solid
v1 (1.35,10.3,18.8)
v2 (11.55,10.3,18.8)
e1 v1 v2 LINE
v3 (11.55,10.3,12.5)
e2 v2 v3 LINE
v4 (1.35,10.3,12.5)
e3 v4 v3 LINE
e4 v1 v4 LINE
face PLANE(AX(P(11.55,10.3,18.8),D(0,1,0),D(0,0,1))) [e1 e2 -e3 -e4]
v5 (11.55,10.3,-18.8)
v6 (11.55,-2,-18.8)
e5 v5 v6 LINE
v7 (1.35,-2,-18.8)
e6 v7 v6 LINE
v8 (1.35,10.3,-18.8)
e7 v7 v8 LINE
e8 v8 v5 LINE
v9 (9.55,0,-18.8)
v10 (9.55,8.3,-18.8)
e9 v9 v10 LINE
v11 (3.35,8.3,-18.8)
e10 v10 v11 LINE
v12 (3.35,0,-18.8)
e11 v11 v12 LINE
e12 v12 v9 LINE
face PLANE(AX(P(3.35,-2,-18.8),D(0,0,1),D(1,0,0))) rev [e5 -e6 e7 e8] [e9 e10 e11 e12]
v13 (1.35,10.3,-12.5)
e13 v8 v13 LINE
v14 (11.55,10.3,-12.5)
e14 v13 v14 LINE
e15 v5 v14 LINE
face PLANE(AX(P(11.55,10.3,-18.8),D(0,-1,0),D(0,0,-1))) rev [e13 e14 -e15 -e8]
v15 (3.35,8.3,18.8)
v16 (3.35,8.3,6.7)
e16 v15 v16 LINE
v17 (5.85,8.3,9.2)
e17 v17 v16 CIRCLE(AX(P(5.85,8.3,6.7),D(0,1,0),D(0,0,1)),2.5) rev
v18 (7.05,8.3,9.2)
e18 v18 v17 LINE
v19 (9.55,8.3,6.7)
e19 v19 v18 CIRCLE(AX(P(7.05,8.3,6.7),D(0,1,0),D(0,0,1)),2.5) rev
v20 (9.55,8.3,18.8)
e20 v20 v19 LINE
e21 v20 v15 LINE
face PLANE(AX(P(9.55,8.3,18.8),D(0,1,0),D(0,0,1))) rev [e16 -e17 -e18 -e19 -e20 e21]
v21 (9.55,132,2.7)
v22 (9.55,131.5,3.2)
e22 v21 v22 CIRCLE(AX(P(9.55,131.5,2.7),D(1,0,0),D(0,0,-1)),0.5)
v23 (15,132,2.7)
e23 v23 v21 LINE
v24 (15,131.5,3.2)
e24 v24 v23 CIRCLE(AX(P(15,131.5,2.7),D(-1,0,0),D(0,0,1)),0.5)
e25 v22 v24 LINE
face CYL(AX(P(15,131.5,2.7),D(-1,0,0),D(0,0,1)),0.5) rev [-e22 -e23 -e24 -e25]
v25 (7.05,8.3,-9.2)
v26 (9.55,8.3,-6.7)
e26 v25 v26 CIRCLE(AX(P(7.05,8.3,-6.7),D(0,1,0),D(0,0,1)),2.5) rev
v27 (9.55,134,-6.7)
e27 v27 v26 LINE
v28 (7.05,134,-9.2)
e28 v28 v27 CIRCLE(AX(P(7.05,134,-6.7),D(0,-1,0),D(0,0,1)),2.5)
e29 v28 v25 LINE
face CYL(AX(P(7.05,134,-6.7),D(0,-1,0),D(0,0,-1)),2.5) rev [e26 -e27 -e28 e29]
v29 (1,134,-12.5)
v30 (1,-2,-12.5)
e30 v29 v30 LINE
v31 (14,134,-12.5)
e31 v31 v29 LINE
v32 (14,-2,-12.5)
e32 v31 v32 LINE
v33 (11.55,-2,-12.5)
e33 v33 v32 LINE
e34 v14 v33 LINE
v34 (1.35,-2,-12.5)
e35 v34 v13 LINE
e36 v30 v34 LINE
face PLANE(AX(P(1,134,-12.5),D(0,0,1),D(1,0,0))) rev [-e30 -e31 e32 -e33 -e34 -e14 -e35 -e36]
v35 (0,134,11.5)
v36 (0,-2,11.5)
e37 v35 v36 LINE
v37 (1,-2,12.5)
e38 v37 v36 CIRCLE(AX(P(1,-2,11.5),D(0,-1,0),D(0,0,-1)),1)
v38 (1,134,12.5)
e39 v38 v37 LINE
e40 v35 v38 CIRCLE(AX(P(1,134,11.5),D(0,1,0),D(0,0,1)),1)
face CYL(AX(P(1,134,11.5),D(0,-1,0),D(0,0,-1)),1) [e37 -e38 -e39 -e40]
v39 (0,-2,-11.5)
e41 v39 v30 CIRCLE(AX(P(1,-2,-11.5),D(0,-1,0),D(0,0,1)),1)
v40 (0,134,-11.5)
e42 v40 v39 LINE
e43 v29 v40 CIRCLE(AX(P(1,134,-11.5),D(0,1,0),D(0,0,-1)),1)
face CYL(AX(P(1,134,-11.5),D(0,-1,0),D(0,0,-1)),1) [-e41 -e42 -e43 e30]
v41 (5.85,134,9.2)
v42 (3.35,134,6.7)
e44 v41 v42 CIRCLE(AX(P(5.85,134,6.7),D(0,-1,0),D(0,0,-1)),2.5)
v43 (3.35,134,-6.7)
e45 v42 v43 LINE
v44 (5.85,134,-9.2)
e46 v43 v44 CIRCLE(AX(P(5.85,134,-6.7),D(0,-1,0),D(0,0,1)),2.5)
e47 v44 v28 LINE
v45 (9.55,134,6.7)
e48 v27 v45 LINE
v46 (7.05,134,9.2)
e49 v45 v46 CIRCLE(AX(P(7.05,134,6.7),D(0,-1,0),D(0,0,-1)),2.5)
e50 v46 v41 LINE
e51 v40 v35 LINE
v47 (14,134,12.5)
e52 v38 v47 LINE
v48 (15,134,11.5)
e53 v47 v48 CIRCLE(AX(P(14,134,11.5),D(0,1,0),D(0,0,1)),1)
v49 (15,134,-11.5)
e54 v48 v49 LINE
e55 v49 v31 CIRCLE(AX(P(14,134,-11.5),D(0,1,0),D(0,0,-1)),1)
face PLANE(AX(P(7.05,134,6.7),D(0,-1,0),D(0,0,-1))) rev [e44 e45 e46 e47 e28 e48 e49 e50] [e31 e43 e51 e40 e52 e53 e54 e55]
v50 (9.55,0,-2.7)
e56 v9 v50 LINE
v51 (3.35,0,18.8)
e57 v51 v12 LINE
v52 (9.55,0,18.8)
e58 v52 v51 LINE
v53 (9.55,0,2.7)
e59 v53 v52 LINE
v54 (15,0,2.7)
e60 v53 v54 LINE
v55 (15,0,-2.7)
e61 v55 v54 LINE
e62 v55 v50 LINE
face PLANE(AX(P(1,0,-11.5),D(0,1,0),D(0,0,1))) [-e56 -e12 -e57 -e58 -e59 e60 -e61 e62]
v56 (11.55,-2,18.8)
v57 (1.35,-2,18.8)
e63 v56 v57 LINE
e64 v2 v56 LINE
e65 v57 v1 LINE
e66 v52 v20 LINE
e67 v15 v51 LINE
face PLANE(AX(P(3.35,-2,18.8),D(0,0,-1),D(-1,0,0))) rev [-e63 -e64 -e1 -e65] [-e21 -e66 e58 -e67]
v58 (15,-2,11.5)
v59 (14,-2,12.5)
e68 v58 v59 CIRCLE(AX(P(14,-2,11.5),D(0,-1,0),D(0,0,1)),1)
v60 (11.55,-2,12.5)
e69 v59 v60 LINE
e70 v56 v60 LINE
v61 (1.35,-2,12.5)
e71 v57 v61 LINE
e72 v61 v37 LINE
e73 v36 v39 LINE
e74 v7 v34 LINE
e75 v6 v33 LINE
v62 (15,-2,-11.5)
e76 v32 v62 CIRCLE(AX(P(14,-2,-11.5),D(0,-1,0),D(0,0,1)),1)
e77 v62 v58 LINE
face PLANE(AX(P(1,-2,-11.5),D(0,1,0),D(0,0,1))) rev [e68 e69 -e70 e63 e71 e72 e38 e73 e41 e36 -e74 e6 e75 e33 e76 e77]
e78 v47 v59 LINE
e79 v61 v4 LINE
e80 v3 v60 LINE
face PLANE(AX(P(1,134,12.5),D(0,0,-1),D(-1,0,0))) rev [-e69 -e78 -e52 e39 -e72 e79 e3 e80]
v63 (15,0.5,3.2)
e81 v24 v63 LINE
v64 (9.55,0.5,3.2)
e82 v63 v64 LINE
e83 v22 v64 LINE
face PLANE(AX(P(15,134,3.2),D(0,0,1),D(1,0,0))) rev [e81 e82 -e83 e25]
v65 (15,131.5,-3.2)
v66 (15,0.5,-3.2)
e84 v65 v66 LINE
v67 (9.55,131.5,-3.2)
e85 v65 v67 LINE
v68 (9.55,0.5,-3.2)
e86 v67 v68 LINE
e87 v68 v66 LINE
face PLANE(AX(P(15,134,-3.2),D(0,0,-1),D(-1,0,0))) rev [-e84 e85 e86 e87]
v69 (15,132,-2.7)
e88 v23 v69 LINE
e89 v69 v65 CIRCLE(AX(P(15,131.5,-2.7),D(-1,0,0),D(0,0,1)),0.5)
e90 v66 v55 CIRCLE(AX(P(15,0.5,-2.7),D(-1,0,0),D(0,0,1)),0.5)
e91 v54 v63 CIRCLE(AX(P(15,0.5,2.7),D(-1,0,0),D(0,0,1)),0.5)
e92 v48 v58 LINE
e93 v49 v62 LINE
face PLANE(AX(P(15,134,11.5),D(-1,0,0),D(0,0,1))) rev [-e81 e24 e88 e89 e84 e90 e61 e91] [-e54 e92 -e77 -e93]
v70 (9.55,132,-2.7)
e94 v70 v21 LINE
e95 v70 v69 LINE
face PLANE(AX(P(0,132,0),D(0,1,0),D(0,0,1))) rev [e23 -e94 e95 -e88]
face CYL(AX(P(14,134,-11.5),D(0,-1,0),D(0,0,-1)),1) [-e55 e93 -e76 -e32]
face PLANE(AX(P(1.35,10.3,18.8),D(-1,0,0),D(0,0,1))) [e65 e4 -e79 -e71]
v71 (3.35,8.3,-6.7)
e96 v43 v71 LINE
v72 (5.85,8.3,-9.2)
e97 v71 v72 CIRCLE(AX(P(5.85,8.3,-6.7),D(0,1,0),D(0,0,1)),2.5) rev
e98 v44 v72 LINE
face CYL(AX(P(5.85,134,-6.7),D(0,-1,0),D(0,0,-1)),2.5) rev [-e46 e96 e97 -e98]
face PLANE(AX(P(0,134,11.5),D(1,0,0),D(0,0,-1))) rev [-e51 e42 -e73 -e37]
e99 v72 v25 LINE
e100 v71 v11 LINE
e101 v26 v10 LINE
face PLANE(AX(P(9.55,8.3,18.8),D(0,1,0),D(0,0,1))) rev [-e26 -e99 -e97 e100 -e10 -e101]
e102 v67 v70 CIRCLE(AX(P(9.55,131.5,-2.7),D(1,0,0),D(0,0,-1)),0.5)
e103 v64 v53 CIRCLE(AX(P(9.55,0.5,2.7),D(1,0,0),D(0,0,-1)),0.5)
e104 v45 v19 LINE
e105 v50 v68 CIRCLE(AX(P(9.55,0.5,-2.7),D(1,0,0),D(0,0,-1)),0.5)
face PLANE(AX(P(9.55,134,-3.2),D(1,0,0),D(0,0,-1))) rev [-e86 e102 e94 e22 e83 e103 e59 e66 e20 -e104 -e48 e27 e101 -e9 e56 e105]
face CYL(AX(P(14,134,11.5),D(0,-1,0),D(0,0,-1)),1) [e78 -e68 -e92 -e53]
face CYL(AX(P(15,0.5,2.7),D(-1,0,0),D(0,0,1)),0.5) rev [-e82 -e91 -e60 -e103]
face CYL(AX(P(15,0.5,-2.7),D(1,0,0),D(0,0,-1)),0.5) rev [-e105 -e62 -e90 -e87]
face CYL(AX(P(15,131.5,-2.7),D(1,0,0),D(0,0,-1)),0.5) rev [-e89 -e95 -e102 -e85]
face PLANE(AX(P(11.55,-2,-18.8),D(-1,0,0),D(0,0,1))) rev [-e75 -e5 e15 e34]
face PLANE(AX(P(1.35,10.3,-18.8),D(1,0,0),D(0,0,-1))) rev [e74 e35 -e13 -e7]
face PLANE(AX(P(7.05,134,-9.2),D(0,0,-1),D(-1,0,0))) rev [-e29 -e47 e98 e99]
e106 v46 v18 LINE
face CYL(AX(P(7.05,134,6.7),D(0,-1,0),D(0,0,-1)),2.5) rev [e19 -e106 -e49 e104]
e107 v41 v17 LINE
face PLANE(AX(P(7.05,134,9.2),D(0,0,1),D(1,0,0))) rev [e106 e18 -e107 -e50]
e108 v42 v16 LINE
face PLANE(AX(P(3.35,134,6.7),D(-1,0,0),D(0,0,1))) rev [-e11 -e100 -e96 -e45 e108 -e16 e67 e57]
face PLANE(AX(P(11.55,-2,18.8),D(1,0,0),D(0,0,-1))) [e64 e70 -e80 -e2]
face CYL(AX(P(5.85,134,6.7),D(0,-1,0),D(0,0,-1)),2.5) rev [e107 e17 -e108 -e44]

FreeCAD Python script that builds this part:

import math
import FreeCAD as App
import Part
import Sketcher
from FreeCAD import Vector
Q = App.Units.Quantity


def edges_at(feature, points):
    """Names of the edges that pass closest to the given points."""
    edges = feature.Shape.Edges
    near = lambda p: min(range(len(edges)), key=lambda i: edges[i].distToShape(Part.Vertex(*p))[0])
    return sorted({f"Edge{near(p) + 1}" for p in points})

doc = App.newDocument("Part")
body = doc.addObject("PartDesign::Body", "Body")

sketch1 = doc.addObject("Sketcher::SketchObject", "Sketch")
body.addObject(sketch1)
sketch1.AttachmentSupport = (doc.XZ_Plane, [""])
sketch1.MapMode = "FlatFace"
sketch1.addGeometry([
    Part.LineSegment(Vector(0, -11.5, 0), Vector(0, 11.5, 0)),
    Part.ArcOfCircle(Part.Circle(Vector(1, 11.5, 0), Vector(0, 0, 1), 1), math.radians(90), math.radians(180)),
    Part.LineSegment(Vector(1, 12.5, 0), Vector(14, 12.5, 0)),
    Part.ArcOfCircle(Part.Circle(Vector(14, 11.5, 0), Vector(0, 0, 1), 1), math.radians(0), math.radians(90)),
    Part.LineSegment(Vector(15, 11.5, 0), Vector(15, 3.2, 0)),
    Part.LineSegment(Vector(15, 3.2, 0), Vector(9.6, 3.2, 0)),
    Part.LineSegment(Vector(9.6, 3.2, 0), Vector(9.6, 6.7, 0)),
    Part.ArcOfCircle(Part.Circle(Vector(7, 6.7, 0), Vector(0, 0, 1), 2.5), math.radians(0), math.radians(90)),
    Part.LineSegment(Vector(7, 9.2, 0), Vector(5.8, 9.2, 0)),
    Part.ArcOfCircle(Part.Circle(Vector(5.8, 6.7, 0), Vector(0, 0, 1), 2.5), math.radians(90), math.radians(180)),
    Part.LineSegment(Vector(3.4, 6.7, 0), Vector(3.4, -6.7, 0)),
    Part.ArcOfCircle(Part.Circle(Vector(5.8, -6.7, 0), Vector(0, 0, 1), 2.5), math.radians(180), math.radians(270)),
    Part.LineSegment(Vector(5.8, -9.2, 0), Vector(7, -9.2, 0)),
    Part.ArcOfCircle(Part.Circle(Vector(7, -6.7, 0), Vector(0, 0, 1), 2.5), math.radians(-90), math.radians(0)),
    Part.LineSegment(Vector(9.6, -6.7, 0), Vector(9.6, -3.2, 0)),
    Part.LineSegment(Vector(9.6, -3.2, 0), Vector(15, -3.2, 0)),
    Part.LineSegment(Vector(15, -3.2, 0), Vector(15, -11.5, 0)),
    Part.ArcOfCircle(Part.Circle(Vector(14, -11.5, 0), Vector(0, 0, 1), 1), math.radians(-90), math.radians(0)),
    Part.LineSegment(Vector(14, -12.5, 0), Vector(1, -12.5, 0)),
    Part.ArcOfCircle(Part.Circle(Vector(1, -11.5, 0), Vector(0, 0, 1), 1), math.radians(-180), math.radians(-90)),
], False)
sketch1.addConstraint([
    Sketcher.Constraint("Tangent", 0, 2, 1, 2),
    Sketcher.Constraint("Tangent", 1, 1, 2, 1),
    Sketcher.Constraint("Tangent", 2, 2, 3, 2),
    Sketcher.Constraint("Tangent", 3, 1, 4, 1),
    Sketcher.Constraint("Coincident", 4, 2, 5, 1),
    Sketcher.Constraint("Coincident", 5, 2, 6, 1),
    Sketcher.Constraint("Tangent", 6, 2, 7, 1),
    Sketcher.Constraint("Tangent", 7, 2, 8, 1),
    Sketcher.Constraint("Tangent", 8, 2, 9, 1),
    Sketcher.Constraint("Tangent", 9, 2, 10, 1),
    Sketcher.Constraint("Tangent", 10, 2, 11, 1),
    Sketcher.Constraint("Tangent", 11, 2, 12, 1),
    Sketcher.Constraint("Tangent", 12, 2, 13, 1),
    Sketcher.Constraint("Tangent", 13, 2, 14, 1),
    Sketcher.Constraint("Coincident", 14, 2, 15, 1),
    Sketcher.Constraint("Coincident", 15, 2, 16, 1),
    Sketcher.Constraint("Tangent", 16, 2, 17, 2),
    Sketcher.Constraint("Tangent", 17, 1, 18, 1),
    Sketcher.Constraint("Tangent", 18, 2, 19, 2),
    Sketcher.Constraint("Tangent", 19, 1, 0, 1),
    Sketcher.Constraint("Vertical", 0),
    Sketcher.Constraint("Horizontal", 2),
    Sketcher.Constraint("Vertical", 4),
    Sketcher.Constraint("Horizontal", 5),
    Sketcher.Constraint("Vertical", 6),
    Sketcher.Constraint("Horizontal", 8),
    Sketcher.Constraint("Vertical", 10),
    Sketcher.Constraint("Horizontal", 12),
    Sketcher.Constraint("Vertical", 14),
    Sketcher.Constraint("Horizontal", 15),
    Sketcher.Constraint("Vertical", 16),
    Sketcher.Constraint("Horizontal", 18),
    Sketcher.Constraint("Equal", 1, 3),
    Sketcher.Constraint("Equal", 7, 9),
    Sketcher.Constraint("Equal", 9, 11),
    Sketcher.Constraint("Equal", 11, 13),
    Sketcher.Constraint("Equal", 3, 17),
    Sketcher.Constraint("Equal", 17, 19),
    Sketcher.Constraint("Symmetric", 0, 2, 19, 1, -1, 1),
    Sketcher.Constraint("Symmetric", 7, 3, 13, 3, -1),
    Sketcher.Constraint("Symmetric", 4, 2, 15, 2, -1),
    Sketcher.Constraint("Radius", 1, Q("1 mm")),
    Sketcher.Constraint("Radius", 7, Q("2.5 mm")),
    Sketcher.Constraint("DistanceX", 2, 1, 2, 2, Q("13 mm")),
    Sketcher.Constraint("DistanceY", 0, 1, 0, 2, Q("23 mm")),
    Sketcher.Constraint("DistanceX", 8, 2, 8, 1, Q("1.2 mm")),
    Sketcher.Constraint("DistanceY", 4, 2, 4, 1, Q("8.3 mm")),
    Sketcher.Constraint("DistanceY", 6, 1, 6, 2, Q("3.5 mm")),
    Sketcher.Constraint("DistanceX", 5, 2, 5, 1, Q("5.45 mm")),
])
pad1 = doc.addObject("PartDesign::Pad", "Pad")
body.addObject(pad1)
pad1.Profile = sketch1
pad1.Length = 134
pad1.Reversed = True

sketch2 = doc.addObject("Sketcher::SketchObject", "Sketch001")
body.addObject(sketch2)
sketch2.AttachmentSupport = (doc.XZ_Plane, [""])
sketch2.MapMode = "FlatFace"
sketch2.addGeometry([
    Part.LineSegment(Vector(3.4, 12.5, 0), Vector(1, 12.5, 0)),
    Part.ArcOfCircle(Part.Circle(Vector(1, 11.5, 0), Vector(0, 0, 1), 1), math.radians(90), math.radians(180)),
    Part.LineSegment(Vector(0, 11.5, 0), Vector(0, -11.5, 0)),
    Part.ArcOfCircle(Part.Circle(Vector(1, -11.5, 0), Vector(0, 0, 1), 1), math.radians(-180), math.radians(-90)),
    Part.LineSegment(Vector(1, -12.5, 0), Vector(3.4, -12.5, 0)),
    Part.LineSegment(Vector(3.4, -12.5, 0), Vector(3.4, -18.8, 0)),
    Part.LineSegment(Vector(3.4, -18.8, 0), Vector(9.6, -18.8, 0)),
    Part.LineSegment(Vector(9.6, -18.8, 0), Vector(9.6, -12.5, 0)),
    Part.LineSegment(Vector(9.6, -12.5, 0), Vector(14, -12.5, 0)),
    Part.ArcOfCircle(Part.Circle(Vector(14, -11.5, 0), Vector(0, 0, 1), 1), math.radians(-90), math.radians(0)),
    Part.LineSegment(Vector(15, -11.5, 0), Vector(15, 11.5, 0)),
    Part.ArcOfCircle(Part.Circle(Vector(14, 11.5, 0), Vector(0, 0, 1), 1), math.radians(0), math.radians(90)),
    Part.LineSegment(Vector(14, 12.5, 0), Vector(9.6, 12.5, 0)),
    Part.LineSegment(Vector(9.6, 12.5, 0), Vector(9.6, 18.8, 0)),
    Part.LineSegment(Vector(9.6, 18.8, 0), Vector(3.4, 18.8, 0)),
    Part.LineSegment(Vector(3.4, 18.8, 0), Vector(3.4, 12.5, 0)),
], False)
sketch2.addConstraint([
    Sketcher.Constraint("Tangent", 0, 2, 1, 1),
    Sketcher.Constraint("Tangent", 1, 2, 2, 1),
    Sketcher.Constraint("Tangent", 2, 2, 3, 1),
    Sketcher.Constraint("Tangent", 3, 2, 4, 1),
    Sketcher.Constraint("Coincident", 4, 2, 5, 1),
    Sketcher.Constraint("Coincident", 5, 2, 6, 1),
    Sketcher.Constraint("Coincident", 6, 2, 7, 1),
    Sketcher.Constraint("Coincident", 7, 2, 8, 1),
    Sketcher.Constraint("Tangent", 8, 2, 9, 1),
    Sketcher.Constraint("Tangent", 9, 2, 10, 1),
    Sketcher.Constraint("Tangent", 10, 2, 11, 1),
    Sketcher.Constraint("Tangent", 11, 2, 12, 1),
    Sketcher.Constraint("Coincident", 12, 2, 13, 1),
    Sketcher.Constraint("Coincident", 13, 2, 14, 1),
    Sketcher.Constraint("Coincident", 14, 2, 15, 1),
    Sketcher.Constraint("Coincident", 15, 2, 0, 1),
    Sketcher.Constraint("Horizontal", 0),
    Sketcher.Constraint("Vertical", 2),
    Sketcher.Constraint("Horizontal", 4),
    Sketcher.Constraint("Vertical", 5),
    Sketcher.Constraint("Horizontal", 6),
    Sketcher.Constraint("Vertical", 7),
    Sketcher.Constraint("Horizontal", 8),
    Sketcher.Constraint("Vertical", 10),
    Sketcher.Constraint("Horizontal", 12),
    Sketcher.Constraint("Vertical", 13),
    Sketcher.Constraint("Horizontal", 14),
    Sketcher.Constraint("Vertical", 15),
    Sketcher.Constraint("Equal", 1, 3),
    Sketcher.Constraint("Equal", 3, 9),
    Sketcher.Constraint("Equal", 9, 11),
    Sketcher.Constraint("Symmetric", 1, 2, 2, 2, -1, 1),
    Sketcher.Constraint("Symmetric", 7, 2, 12, 2, -1),
    Sketcher.Constraint("Symmetric", 5, 2, 14, 2, -1),
    Sketcher.Constraint("Horizontal", 3, 3, 9, 3),
    Sketcher.Constraint("Radius", 1, Q("1 mm")),
    Sketcher.Constraint("DistanceY", 2, 2, 2, 1, Q("23 mm")),
    Sketcher.Constraint("DistanceX", 6, 1, 6, 2, Q("6.2 mm")),
    Sketcher.Constraint("DistanceY", 5, 2, 5, 1, Q("6.3 mm")),
    Sketcher.Constraint("DistanceX", -1, 1, 9, 3, Q("14 mm")),
    Sketcher.Constraint("DistanceX", 0, 2, 0, 1, Q("2.35 mm")),
])
pad2 = doc.addObject("PartDesign::Pad", "Pad001")
body.addObject(pad2)
pad2.Profile = sketch2
pad2.Length = 2

sketch3 = doc.addObject("Sketcher::SketchObject", "Sketch002")
body.addObject(sketch3)
sketch3.AttachmentSupport = (doc.XZ_Plane, [""])
sketch3.MapMode = "FlatFace"
sketch3.AttachmentOffset = App.Placement(Vector(0, 0, -134), App.Rotation())
sketch3.addGeometry([
    Part.LineSegment(Vector(10, -3, 0), Vector(10, 3, 0)),
    Part.LineSegment(Vector(10, 3, 0), Vector(15, 3, 0)),
    Part.LineSegment(Vector(15, 3, 0), Vector(15, -3, 0)),
    Part.LineSegment(Vector(15, -3, 0), Vector(10, -3, 0)),
], False)
sketch3.addConstraint([
    Sketcher.Constraint("Coincident", 0, 2, 1, 1),
    Sketcher.Constraint("Coincident", 1, 2, 2, 1),
    Sketcher.Constraint("Coincident", 2, 2, 3, 1),
    Sketcher.Constraint("Coincident", 3, 2, 0, 1),
    Sketcher.Constraint("Vertical", 0),
    Sketcher.Constraint("Horizontal", 1),
    Sketcher.Constraint("Vertical", 2),
    Sketcher.Constraint("Horizontal", 3),
    Sketcher.Constraint("DistanceY", 0, 1, 0, 2, Q("6.4 mm")),
    Sketcher.Constraint("DistanceX", -1, 1, 1, 2, Q("15 mm")),
    Sketcher.Constraint("DistanceX", 1, 1, 1, 2, Q("5.45 mm")),
    Sketcher.Constraint("DistanceY", -1, 1, 0, 2, Q("3.2 mm")),
])
pad3 = doc.addObject("PartDesign::Pad", "Pad002")
body.addObject(pad3)
pad3.Profile = sketch3
pad3.Length = 2
doc.recompute()

fillet = doc.addObject("PartDesign::Fillet", "Fillet")
body.addObject(fillet)
fillet.Base = (pad3, edges_at(pad3, [(12.275, 132, 3.2)]))
fillet.Radius = 0.5
doc.recompute()

fillet2 = doc.addObject("PartDesign::Fillet", "Fillet001")
body.addObject(fillet2)
fillet2.Base = (fillet, edges_at(fillet, [(12.275, 132, -3.2), (12.275, 0, -3.2), (12.275, 0, 3.2)]))
fillet2.Radius = 0.5

sketch4 = doc.addObject("Sketcher::SketchObject", "Sketch003")
body.addObject(sketch4)
sketch4.AttachmentSupport = (doc.XY_Plane, [""])
sketch4.MapMode = "FlatFace"
sketch4.AttachmentOffset = App.Placement(Vector(0, 0, -12.5), App.Rotation())
sketch4.addGeometry([
    Part.LineSegment(Vector(10, 8, 0), Vector(10, 0, 0)),
    Part.LineSegment(Vector(10, 0, 0), Vector(3, 0, 0)),
    Part.LineSegment(Vector(3, 0, 0), Vector(3, 8, 0)),
    Part.LineSegment(Vector(3, 8, 0), Vector(10, 8, 0)),
], False)
sketch4.addConstraint([
    Sketcher.Constraint("Coincident", 0, 2, 1, 1),
    Sketcher.Constraint("Coincident", 1, 2, 2, 1),
    Sketcher.Constraint("Coincident", 2, 2, 3, 1),
    Sketcher.Constraint("Coincident", 3, 2, 0, 1),
    Sketcher.Constraint("Vertical", 0),
    Sketcher.Constraint("Horizontal", 1),
    Sketcher.Constraint("Vertical", 2),
    Sketcher.Constraint("Horizontal", 3),
    Sketcher.Constraint("PointOnObject", 0, 2, -1),
    Sketcher.Constraint("DistanceX", 1, 2, 1, 1, Q("6.2 mm")),
    Sketcher.Constraint("DistanceY", 0, 2, 0, 1, Q("8.3 mm")),
    Sketcher.Constraint("DistanceX", -1, 1, 0, 2, Q("9.55 mm")),
])
pocket1 = doc.addObject("PartDesign::Pocket", "Pocket")
body.addObject(pocket1)
pocket1.Profile = sketch4
pocket1.Type = "ThroughAll"
pocket1.Reversed = True

sketch5 = doc.addObject("Sketcher::SketchObject", "Sketch004")
body.addObject(sketch5)
sketch5.AttachmentSupport = (doc.XY_Plane, [""])
sketch5.MapMode = "FlatFace"
sketch5.AttachmentOffset = App.Placement(Vector(0, 0, -12.5), App.Rotation())
sketch5.addGeometry([
    Part.LineSegment(Vector(9.6, -2, 0), Vector(9.6, 8.3, 0)),
    Part.LineSegment(Vector(9.6, 8.3, 0), Vector(3.4, 8.3, 0)),
    Part.LineSegment(Vector(3.4, 8.3, 0), Vector(3.4, -2, 0)),
    Part.LineSegment(Vector(3.4, -2, 0), Vector(1.4, -2, 0)),
    Part.LineSegment(Vector(1.4, -2, 0), Vector(1.4, 10.3, 0)),
    Part.LineSegment(Vector(1.4, 10.3, 0), Vector(11.6, 10.3, 0)),
    Part.LineSegment(Vector(11.6, 10.3, 0), Vector(11.6, -2, 0)),
    Part.LineSegment(Vector(11.6, -2, 0), Vector(9.6, -2, 0)),
], False)
sketch5.addConstraint([
    Sketcher.Constraint("Coincident", 0, 2, 1, 1),
    Sketcher.Constraint("Coincident", 1, 2, 2, 1),
    Sketcher.Constraint("Coincident", 2, 2, 3, 1),
    Sketcher.Constraint("Coincident", 3, 2, 4, 1),
    Sketcher.Constraint("Coincident", 4, 2, 5, 1),
    Sketcher.Constraint("Coincident", 5, 2, 6, 1),
    Sketcher.Constraint("Coincident", 6, 2, 7, 1),
    Sketcher.Constraint("Coincident", 7, 2, 0, 1),
    Sketcher.Constraint("Vertical", 0),
    Sketcher.Constraint("Horizontal", 1),
    Sketcher.Constraint("Vertical", 2),
    Sketcher.Constraint("Horizontal", 3),
    Sketcher.Constraint("Vertical", 4),
    Sketcher.Constraint("Horizontal", 5),
    Sketcher.Constraint("Vertical", 6),
    Sketcher.Constraint("Horizontal", 7),
    Sketcher.Constraint("Horizontal", 3, 2, 6, 2),
    Sketcher.Constraint("Equal", 3, 7),
    Sketcher.Constraint("DistanceX", 3, 2, 3, 1, Q("2 mm")),
    Sketcher.Constraint("DistanceX", 1, 2, 1, 1, Q("6.2 mm")),
    Sketcher.Constraint("DistanceY", 0, 1, 0, 2, Q("10.3 mm")),
    Sketcher.Constraint("DistanceY", 4, 1, 4, 2, Q("12.3 mm")),
    Sketcher.Constraint("DistanceY", 2, 2, -1, 1, Q("2 mm")),
    Sketcher.Constraint("DistanceX", -1, 1, 0, 2, Q("9.55 mm")),
])
pad4 = doc.addObject("PartDesign::Pad", "Pad003")
body.addObject(pad4)
pad4.Profile = sketch5
pad4.Length = 6.3
pad4.Reversed = True
doc.recompute()

mirrored = doc.addObject("PartDesign::Mirrored", "Mirrored")
body.addObject(mirrored)
mirrored.Originals = [pad4]
mirrored.MirrorPlane = (doc.XY_Plane, [""])
body.Tip = mirrored

doc.recompute()
